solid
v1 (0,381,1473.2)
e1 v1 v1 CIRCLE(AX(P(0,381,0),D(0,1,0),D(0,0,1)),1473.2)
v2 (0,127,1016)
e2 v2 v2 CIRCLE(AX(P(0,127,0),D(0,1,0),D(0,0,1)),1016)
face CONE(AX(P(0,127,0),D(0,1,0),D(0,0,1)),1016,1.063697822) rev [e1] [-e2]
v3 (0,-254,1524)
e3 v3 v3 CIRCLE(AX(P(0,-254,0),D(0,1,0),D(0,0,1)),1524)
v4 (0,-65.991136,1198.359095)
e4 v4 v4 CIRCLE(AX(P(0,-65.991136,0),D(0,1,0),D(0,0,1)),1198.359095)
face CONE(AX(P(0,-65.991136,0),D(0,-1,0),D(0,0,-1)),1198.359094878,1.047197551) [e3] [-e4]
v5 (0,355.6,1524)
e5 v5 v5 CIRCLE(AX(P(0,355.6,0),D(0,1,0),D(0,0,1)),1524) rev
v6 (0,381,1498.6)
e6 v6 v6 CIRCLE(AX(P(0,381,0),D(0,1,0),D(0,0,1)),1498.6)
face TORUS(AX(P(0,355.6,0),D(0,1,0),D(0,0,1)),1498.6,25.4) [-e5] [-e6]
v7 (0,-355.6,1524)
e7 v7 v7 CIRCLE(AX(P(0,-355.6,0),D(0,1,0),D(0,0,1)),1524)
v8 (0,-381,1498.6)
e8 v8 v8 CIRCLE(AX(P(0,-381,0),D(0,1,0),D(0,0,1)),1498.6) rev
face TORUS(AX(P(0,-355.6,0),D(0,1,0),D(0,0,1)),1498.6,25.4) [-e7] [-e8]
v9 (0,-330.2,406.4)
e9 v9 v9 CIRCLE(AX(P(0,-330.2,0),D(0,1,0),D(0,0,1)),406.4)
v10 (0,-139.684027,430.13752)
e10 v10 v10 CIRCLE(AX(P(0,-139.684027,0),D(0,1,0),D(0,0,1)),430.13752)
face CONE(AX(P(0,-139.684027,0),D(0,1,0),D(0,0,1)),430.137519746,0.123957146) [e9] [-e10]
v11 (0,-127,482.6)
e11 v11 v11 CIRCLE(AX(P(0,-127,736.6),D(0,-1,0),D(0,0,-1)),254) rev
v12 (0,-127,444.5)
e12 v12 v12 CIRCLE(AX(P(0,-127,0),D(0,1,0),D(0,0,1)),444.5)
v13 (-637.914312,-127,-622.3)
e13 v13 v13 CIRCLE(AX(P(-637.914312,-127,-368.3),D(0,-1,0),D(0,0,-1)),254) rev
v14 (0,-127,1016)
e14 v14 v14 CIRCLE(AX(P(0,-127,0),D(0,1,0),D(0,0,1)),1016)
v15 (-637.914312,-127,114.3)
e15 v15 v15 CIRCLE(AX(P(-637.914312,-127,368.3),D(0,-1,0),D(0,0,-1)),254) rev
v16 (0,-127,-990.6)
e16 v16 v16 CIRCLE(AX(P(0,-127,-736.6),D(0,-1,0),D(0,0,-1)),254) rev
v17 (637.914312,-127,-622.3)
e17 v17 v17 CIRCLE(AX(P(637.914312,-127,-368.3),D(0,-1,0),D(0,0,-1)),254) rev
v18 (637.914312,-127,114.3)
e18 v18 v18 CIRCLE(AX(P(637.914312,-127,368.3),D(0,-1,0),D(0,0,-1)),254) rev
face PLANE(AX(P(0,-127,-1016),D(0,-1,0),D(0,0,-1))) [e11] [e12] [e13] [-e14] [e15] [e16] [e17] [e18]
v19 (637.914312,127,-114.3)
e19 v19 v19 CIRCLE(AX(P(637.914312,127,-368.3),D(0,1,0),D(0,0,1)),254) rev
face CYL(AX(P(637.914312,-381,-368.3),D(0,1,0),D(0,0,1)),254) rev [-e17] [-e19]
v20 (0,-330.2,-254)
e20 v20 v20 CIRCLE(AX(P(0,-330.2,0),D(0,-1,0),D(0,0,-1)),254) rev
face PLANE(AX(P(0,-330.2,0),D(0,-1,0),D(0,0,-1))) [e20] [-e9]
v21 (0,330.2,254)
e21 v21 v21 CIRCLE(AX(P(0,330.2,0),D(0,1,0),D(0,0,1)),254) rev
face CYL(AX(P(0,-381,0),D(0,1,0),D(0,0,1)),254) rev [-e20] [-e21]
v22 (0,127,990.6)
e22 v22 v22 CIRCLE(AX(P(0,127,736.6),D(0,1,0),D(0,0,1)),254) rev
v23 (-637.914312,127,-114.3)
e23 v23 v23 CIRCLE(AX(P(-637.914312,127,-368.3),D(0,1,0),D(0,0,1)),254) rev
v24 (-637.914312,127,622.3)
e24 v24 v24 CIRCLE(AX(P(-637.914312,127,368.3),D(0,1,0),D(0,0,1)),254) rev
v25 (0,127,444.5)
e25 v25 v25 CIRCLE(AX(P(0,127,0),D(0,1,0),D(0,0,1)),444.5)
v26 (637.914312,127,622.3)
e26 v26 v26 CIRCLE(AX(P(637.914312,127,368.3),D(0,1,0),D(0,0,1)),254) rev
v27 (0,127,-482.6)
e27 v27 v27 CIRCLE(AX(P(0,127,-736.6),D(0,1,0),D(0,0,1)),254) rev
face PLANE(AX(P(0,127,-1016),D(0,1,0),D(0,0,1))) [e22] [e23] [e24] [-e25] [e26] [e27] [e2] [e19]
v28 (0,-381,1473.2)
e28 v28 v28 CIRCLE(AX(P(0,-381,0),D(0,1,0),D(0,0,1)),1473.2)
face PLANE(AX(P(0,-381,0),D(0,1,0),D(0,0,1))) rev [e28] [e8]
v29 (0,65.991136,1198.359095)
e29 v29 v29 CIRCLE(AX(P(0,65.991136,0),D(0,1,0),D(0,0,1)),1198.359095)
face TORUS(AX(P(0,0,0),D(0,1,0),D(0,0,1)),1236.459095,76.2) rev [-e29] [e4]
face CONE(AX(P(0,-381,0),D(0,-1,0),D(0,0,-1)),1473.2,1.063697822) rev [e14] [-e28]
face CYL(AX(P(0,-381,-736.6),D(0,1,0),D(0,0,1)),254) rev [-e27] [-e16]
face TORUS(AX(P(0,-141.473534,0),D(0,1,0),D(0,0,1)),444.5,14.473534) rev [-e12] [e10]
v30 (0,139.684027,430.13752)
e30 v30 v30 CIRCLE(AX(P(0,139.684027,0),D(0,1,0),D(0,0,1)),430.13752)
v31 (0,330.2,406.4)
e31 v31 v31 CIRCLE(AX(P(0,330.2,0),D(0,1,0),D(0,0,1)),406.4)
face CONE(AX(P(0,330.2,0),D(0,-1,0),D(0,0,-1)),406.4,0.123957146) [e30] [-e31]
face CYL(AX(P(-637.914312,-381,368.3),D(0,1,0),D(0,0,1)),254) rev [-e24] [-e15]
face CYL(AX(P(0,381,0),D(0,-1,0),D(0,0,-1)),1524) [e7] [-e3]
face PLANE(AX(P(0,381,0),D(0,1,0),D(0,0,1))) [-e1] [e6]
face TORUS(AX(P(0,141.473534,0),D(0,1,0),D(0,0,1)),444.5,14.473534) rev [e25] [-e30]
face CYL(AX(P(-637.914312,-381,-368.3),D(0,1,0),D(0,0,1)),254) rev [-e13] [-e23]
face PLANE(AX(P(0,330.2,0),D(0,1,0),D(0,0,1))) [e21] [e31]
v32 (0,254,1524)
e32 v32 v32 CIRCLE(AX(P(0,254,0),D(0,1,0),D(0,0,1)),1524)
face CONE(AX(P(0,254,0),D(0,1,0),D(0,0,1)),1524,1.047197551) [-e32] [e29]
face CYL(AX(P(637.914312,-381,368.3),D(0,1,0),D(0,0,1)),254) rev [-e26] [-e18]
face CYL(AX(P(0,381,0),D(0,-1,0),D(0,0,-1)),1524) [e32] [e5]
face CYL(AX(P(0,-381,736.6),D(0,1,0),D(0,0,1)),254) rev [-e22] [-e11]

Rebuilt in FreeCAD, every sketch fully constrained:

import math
import FreeCAD as App
import Part
import Sketcher

V = App.Vector
Q = App.Units.Quantity


def edges_at(feature, points):
    """Names of the edges that pass closest to the given points."""
    edges = feature.Shape.Edges
    near = lambda p: min(range(len(edges)), key=lambda i: edges[i].distToShape(Part.Vertex(*p))[0])
    return sorted({f"Edge{near(p) + 1}" for p in points})

doc = App.newDocument("Part")
body = doc.addObject("PartDesign::Body", "Body")

# Sketch on XZ plane
sketch1 = doc.addObject("Sketcher::SketchObject", "Sketch")
body.addObject(sketch1)
sketch1.AttachmentSupport = (doc.XZ_Plane, [""])
sketch1.MapMode = "FlatFace"
sketch1.addGeometry(Part.Circle(V(0, 0, 0), V(0, 0, 1), 1524), False)
sketch1.addConstraint([
    Sketcher.Constraint("Coincident", 0, 3, -1, 1),
    Sketcher.Constraint("Diameter", 0, Q("120 in")),
])
pad1 = doc.addObject("PartDesign::Pad", "Pad")
body.addObject(pad1)
pad1.Profile = sketch1
pad1.Length = Q("30 in")
pad1.Midplane = True

# Sketch on YZ plane
sketch2 = doc.addObject("Sketcher::SketchObject", "Sketch001")
body.addObject(sketch2)
sketch2.AttachmentSupport = (doc.YZ_Plane, [""])
sketch2.MapMode = "FlatFace"
sketch2.addGeometry([
    Part.LineSegment(V(-254, -1524, 0), V(254, -1524, 0)),
    Part.LineSegment(V(254, -1524, 0), V(66, -1198, 0)),
    Part.ArcOfCircle(Part.Circle(V(0, -1236, 0), V(0, 0, 1), 76), math.radians(30), math.radians(150)),
    Part.LineSegment(V(-66, -1198, 0), V(-254, -1524, 0)),
], False)
sketch2.addConstraint([
    Sketcher.Constraint("Coincident", 0, 2, 1, 1),
    Sketcher.Constraint("Tangent", 1, 2, 2, 1),
    Sketcher.Constraint("Tangent", 2, 2, 3, 1),
    Sketcher.Constraint("Coincident", 3, 2, 0, 1),
    Sketcher.Constraint("Horizontal", 0),
    Sketcher.Constraint("Symmetric", 1, 2, 2, 2, -2),
    Sketcher.Constraint("Radius", 2, Q("3 in")),
    Sketcher.Constraint("DistanceX", 0, 1, 0, 2, Q("20 in")),
    Sketcher.Constraint("DistanceY", 0, 2, -1, 1, Q("60 in")),
    Sketcher.Constraint("Angle", 1, Q("120 deg")),
])
groove = doc.addObject("PartDesign::Groove", "Groove")
body.addObject(groove)
groove.Profile = sketch2
groove.ReferenceAxis = (sketch2, ["H_Axis"])
groove.Angle = 360

# Sketch on XZ plane
sketch3 = doc.addObject("Sketcher::SketchObject", "Sketch002")
body.addObject(sketch3)
sketch3.AttachmentSupport = (doc.XZ_Plane, [""])
sketch3.MapMode = "FlatFace"
sketch3.AttachmentOffset = App.Placement(V(0, 0, -15 * 25.4), App.Rotation())
sketch3.addGeometry(Part.Circle(V(0, 0, 0), V(0, 0, 1), 254), False)
sketch3.addConstraint([
    Sketcher.Constraint("Coincident", 0, 3, -1, 1),
    Sketcher.Constraint("Diameter", 0, Q("20 in")),
])
pocket1 = doc.addObject("PartDesign::Pocket", "Pocket")
body.addObject(pocket1)
pocket1.Profile = sketch3
pocket1.Type = "ThroughAll"
pocket1.Reversed = True

# Sketch on XZ plane
sketch4 = doc.addObject("Sketcher::SketchObject", "Sketch003")
body.addObject(sketch4)
sketch4.AttachmentSupport = (doc.XZ_Plane, [""])
sketch4.MapMode = "FlatFace"
sketch4.AttachmentOffset = App.Placement(V(0, 0, -15 * 25.4), App.Rotation())
sketch4.addGeometry(Part.Circle(V(0, -737, 0), V(0, 0, 1), 254), False)
sketch4.addConstraint([
    Sketcher.Constraint("PointOnObject", 0, 3, -2),
    Sketcher.Constraint("Diameter", 0, Q("20 in")),
    Sketcher.Constraint("DistanceY", 0, 3, -1, 1, Q("29 in")),
])
pocket2 = doc.addObject("PartDesign::Pocket", "Pocket001")
body.addObject(pocket2)
pocket2.Profile = sketch4
pocket2.Type = "ThroughAll"
pocket2.Reversed = True
doc.recompute()

polarpattern = doc.addObject("PartDesign::PolarPattern", "PolarPattern")
body.addObject(polarpattern)
polarpattern.Originals = [pocket2]
polarpattern.Axis = (doc.Y_Axis, [""])
polarpattern.Angle = 360
polarpattern.Occurrences = 6
body.Tip = polarpattern

# Sketch on YZ plane
sketch5 = doc.addObject("Sketcher::SketchObject", "Sketch004")
body.addObject(sketch5)
sketch5.AttachmentSupport = (doc.YZ_Plane, [""])
sketch5.MapMode = "FlatFace"
sketch5.addGeometry([
    Part.LineSegment(V(330, -406, 0), V(140, -430, 0)),  # 0
    Part.ArcOfCircle(Part.Circle(V(141, -444, 0), V(0, 0, 1), 14), math.radians(97), math.radians(180)),  # 1
    Part.LineSegment(V(127, -444, 0), V(127, -1016, 0)),  # 2
    Part.LineSegment(V(127, -1016, 0), V(381, -1473, 0)),  # 3
    Part.LineSegment(V(381, -1473, 0), V(381, 0, 0)),  # 4
    Part.LineSegment(V(381, 0, 0), V(330, 0, 0)),  # 5
    Part.LineSegment(V(330, 0, 0), V(330, -406, 0)),  # 6
    Part.LineSegment(V(-330, 0, 0), V(-381, 0, 0)),  # 7
    Part.LineSegment(V(-381, 0, 0), V(-381, -1473, 0)),  # 8
    Part.LineSegment(V(-381, -1473, 0), V(-127, -1016, 0)),  # 9
    Part.LineSegment(V(-127, -1016, 0), V(-127, -444, 0)),  # 10
    Part.ArcOfCircle(Part.Circle(V(-141, -444, 0), V(0, 0, 1), 14), math.radians(0), math.radians(83)),  # 11
    Part.LineSegment(V(-140, -430, 0), V(-330, -406, 0)),  # 12
    Part.LineSegment(V(-330, -406, 0), V(-330, 0, 0)),  # 13
], False)
sketch5.addConstraint([
    Sketcher.Constraint("Tangent", 0, 2, 1, 1),
    Sketcher.Constraint("Tangent", 1, 2, 2, 1),
    Sketcher.Constraint("Coincident", 2, 2, 3, 1),
    Sketcher.Constraint("Coincident", 3, 2, 4, 1),
    Sketcher.Constraint("Coincident", 4, 2, 5, 1),
    Sketcher.Constraint("Coincident", 5, 2, 6, 1),
    Sketcher.Constraint("Coincident", 6, 2, 0, 1),
    Sketcher.Constraint("Coincident", 7, 2, 8, 1),
    Sketcher.Constraint("Coincident", 8, 2, 9, 1),
    Sketcher.Constraint("Coincident", 9, 2, 10, 1),
    Sketcher.Constraint("Tangent", 10, 2, 11, 1),
    Sketcher.Constraint("Tangent", 11, 2, 12, 1),
    Sketcher.Constraint("Coincident", 12, 2, 13, 1),
    Sketcher.Constraint("Coincident", 13, 2, 7, 1),
    Sketcher.Constraint("Vertical", 2),
    Sketcher.Constraint("Vertical", 4),
    Sketcher.Constraint("Horizontal", 5),
    Sketcher.Constraint("Vertical", 6),
    Sketcher.Constraint("Horizontal", 7),
    Sketcher.Constraint("Vertical", 8),
    Sketcher.Constraint("Vertical", 10),
    Sketcher.Constraint("Vertical", 13),
    Sketcher.Constraint("Equal", 1, 11),
    Sketcher.Constraint("Symmetric", 4, 2, 7, 2, -1, 1),
    Sketcher.Constraint("Symmetric", 1, 3, 11, 3, -2),
    Sketcher.Constraint("Symmetric", 6, 2, 12, 2, -2),
    Sketcher.Constraint("PointOnObject", 4, 2, -1),
    Sketcher.Constraint("Horizontal", 3, 2, 8, 2),
    Sketcher.Constraint("Horizontal", 2, 2, 9, 2),
    Sketcher.Constraint("DistanceX", 5, 2, 5, 1, Q("2 in")),
    Sketcher.Constraint("DistanceY", 4, 1, 4, 2, Q("58 in")),
    Sketcher.Constraint("DistanceY", 6, 2, 6, 1, Q("16 in")),
    Sketcher.Constraint("DistanceY", 2, 2, 2, 1, Q("22.5 in")),
    Sketcher.Constraint("DistanceX", -1, 1, 1, 2, Q("5 in")),
    Sketcher.Constraint("DistanceY", 2, 2, -1, 1, Q("40 in")),
    Sketcher.Constraint("DistanceX", -1, 1, 3, 2, Q("15 in")),
    Sketcher.Constraint("Radius", 1, 14.473534),
])
groove2 = doc.addObject("PartDesign::Groove", "Groove001")
body.addObject(groove2)
groove2.Profile = sketch5
groove2.ReferenceAxis = (sketch5, ["H_Axis"])
groove2.Angle = 360
doc.recompute()

fillet = doc.addObject("PartDesign::Fillet", "Fillet")
body.addObject(fillet)
fillet.Base = (groove2, edges_at(groove2, [(-1524, -381, 0), (-1524, 381, 0)]))
fillet.Radius = Q("1 in")

doc.recompute()
